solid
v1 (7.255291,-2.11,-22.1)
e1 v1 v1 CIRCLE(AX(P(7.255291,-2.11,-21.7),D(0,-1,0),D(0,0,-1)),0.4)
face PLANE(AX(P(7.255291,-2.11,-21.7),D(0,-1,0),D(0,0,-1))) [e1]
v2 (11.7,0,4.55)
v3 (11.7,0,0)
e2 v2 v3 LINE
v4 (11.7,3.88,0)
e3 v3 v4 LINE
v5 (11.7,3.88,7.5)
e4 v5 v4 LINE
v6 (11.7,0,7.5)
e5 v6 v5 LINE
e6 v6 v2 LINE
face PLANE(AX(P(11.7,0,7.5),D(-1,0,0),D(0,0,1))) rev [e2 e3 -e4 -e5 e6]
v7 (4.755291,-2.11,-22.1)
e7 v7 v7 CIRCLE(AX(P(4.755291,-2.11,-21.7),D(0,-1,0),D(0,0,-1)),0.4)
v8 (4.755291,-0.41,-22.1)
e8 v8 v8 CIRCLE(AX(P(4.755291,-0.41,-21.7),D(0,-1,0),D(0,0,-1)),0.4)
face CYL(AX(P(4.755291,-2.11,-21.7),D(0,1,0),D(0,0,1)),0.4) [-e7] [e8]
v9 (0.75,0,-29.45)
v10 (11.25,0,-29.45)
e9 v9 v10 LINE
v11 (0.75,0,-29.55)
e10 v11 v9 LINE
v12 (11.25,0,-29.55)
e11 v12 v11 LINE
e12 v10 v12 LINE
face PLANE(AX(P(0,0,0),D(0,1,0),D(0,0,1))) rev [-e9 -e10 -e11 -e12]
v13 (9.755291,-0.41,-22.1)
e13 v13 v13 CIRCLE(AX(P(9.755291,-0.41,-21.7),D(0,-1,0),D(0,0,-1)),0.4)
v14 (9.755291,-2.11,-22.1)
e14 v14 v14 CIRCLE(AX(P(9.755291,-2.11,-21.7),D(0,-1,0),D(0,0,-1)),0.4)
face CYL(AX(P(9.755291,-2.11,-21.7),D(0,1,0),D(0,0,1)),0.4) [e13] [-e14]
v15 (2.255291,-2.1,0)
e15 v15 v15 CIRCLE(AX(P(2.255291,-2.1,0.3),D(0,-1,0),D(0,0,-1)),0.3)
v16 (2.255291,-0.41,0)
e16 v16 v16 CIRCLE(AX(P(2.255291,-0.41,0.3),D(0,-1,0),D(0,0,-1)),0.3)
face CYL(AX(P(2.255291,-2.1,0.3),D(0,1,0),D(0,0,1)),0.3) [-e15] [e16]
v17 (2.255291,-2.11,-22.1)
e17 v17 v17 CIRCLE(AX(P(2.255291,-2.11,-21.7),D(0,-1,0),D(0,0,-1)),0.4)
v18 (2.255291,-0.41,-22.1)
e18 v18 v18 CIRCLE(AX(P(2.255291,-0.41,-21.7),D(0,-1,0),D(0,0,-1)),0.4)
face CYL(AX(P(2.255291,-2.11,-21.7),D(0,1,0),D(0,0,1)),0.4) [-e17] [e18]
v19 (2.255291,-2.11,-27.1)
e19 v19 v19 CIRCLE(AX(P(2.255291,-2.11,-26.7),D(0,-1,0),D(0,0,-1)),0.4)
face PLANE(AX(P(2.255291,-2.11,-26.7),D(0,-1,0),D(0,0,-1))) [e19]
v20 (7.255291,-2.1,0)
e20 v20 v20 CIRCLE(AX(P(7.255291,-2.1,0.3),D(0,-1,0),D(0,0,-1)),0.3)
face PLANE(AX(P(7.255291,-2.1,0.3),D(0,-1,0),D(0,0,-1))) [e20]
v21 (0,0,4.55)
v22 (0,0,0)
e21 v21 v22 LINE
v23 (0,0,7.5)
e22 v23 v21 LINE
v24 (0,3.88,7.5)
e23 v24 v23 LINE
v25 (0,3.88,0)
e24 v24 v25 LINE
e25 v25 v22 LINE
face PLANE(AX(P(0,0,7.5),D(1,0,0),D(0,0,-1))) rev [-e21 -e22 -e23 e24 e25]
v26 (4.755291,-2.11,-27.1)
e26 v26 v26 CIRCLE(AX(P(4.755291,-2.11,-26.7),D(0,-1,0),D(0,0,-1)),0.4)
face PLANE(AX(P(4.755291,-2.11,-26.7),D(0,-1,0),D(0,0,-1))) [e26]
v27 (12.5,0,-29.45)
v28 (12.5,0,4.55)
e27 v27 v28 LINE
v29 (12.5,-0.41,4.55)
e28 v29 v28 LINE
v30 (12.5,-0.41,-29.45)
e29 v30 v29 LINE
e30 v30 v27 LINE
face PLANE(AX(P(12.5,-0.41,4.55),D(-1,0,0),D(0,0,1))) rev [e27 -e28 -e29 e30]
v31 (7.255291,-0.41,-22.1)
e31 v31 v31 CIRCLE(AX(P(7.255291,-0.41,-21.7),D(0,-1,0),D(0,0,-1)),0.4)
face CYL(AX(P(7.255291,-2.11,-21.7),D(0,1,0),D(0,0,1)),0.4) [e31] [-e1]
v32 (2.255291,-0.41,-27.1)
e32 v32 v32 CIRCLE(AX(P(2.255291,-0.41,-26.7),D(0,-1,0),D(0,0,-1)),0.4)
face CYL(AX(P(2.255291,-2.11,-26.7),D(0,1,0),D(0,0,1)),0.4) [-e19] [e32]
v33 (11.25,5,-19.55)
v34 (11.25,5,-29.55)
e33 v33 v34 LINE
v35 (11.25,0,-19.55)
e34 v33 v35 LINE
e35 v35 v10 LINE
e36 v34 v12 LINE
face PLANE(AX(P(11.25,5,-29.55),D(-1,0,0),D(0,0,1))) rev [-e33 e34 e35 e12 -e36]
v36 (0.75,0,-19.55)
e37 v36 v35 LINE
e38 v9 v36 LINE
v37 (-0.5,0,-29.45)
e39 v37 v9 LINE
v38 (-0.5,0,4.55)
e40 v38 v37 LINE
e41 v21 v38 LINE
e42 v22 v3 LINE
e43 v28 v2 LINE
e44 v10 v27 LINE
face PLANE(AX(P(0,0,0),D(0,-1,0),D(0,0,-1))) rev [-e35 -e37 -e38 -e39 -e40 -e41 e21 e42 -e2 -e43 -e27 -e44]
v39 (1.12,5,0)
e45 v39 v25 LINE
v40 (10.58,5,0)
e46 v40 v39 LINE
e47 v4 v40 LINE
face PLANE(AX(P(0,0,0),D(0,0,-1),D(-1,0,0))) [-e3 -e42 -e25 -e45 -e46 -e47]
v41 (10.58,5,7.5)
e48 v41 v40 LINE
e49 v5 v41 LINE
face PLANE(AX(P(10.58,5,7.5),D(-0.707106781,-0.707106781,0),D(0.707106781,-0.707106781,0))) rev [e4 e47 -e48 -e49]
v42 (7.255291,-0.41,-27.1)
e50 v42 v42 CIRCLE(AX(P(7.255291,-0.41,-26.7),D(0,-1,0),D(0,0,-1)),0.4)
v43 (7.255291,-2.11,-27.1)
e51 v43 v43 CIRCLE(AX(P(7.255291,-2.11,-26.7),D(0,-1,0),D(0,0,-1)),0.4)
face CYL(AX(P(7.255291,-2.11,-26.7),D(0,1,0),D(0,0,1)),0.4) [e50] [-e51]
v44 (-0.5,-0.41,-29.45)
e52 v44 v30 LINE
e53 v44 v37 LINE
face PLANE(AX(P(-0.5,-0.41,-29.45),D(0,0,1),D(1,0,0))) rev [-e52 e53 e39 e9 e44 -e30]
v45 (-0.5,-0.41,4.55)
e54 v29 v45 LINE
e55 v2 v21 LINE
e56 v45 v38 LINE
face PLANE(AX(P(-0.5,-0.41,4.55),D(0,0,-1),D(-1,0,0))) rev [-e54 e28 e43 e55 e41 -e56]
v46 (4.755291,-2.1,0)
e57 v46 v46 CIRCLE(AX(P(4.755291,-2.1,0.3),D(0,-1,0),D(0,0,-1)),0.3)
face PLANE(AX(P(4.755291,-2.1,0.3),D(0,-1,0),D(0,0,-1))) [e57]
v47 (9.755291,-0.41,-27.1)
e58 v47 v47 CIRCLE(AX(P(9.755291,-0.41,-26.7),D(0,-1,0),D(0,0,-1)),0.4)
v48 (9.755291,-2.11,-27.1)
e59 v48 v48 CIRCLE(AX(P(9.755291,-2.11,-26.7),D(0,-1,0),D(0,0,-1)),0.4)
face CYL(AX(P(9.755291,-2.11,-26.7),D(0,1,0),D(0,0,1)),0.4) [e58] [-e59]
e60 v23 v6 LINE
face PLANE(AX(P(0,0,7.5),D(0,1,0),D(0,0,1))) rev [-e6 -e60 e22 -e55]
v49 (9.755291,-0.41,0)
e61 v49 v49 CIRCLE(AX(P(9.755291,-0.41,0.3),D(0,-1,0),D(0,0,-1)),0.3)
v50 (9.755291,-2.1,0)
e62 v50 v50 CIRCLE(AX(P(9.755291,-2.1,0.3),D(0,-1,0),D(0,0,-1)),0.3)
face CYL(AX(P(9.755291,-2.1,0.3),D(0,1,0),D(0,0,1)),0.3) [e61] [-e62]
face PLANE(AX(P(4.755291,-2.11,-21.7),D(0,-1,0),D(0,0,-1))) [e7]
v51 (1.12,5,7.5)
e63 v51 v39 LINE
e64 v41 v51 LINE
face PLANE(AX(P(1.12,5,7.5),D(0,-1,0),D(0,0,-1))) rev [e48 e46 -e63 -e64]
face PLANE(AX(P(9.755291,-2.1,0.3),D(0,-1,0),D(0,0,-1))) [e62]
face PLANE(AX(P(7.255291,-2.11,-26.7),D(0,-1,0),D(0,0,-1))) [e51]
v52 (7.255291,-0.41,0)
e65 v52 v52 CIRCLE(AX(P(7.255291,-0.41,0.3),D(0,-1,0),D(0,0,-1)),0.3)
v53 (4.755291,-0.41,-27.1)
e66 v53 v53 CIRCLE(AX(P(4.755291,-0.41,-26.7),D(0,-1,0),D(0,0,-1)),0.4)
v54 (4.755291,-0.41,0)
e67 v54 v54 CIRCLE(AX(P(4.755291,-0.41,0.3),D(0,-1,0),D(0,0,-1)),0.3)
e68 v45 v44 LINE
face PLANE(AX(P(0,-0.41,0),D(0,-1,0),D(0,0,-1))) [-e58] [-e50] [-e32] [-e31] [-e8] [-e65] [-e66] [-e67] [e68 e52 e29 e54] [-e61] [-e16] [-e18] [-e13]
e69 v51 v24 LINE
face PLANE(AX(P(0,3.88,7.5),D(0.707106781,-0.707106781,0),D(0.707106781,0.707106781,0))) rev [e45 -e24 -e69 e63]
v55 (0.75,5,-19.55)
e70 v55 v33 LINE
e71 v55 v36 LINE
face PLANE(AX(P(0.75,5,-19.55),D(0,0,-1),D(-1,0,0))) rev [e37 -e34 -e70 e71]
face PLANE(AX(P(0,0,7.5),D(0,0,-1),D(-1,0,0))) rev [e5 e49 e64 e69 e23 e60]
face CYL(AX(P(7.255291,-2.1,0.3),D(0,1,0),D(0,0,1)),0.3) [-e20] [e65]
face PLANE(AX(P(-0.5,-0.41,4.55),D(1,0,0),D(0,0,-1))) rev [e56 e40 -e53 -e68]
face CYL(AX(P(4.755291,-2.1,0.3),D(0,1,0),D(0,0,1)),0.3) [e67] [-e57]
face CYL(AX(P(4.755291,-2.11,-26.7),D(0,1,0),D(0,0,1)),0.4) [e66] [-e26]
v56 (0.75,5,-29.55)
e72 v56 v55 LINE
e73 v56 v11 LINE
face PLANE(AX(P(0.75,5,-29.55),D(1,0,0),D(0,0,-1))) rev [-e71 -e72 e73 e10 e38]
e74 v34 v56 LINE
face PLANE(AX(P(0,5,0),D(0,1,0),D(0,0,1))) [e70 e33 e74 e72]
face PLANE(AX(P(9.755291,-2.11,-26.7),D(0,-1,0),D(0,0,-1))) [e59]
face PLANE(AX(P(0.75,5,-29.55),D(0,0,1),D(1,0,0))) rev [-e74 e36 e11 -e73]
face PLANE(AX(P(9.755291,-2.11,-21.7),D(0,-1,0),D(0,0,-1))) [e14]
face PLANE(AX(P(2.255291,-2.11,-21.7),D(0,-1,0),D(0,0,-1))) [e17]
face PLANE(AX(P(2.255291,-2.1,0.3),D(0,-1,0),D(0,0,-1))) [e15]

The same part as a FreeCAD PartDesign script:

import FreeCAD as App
import Part
import Sketcher

V = App.Vector

doc = App.newDocument("Part")
body = doc.addObject("PartDesign::Body", "Body")

# Sketch on XY plane
sketch1 = doc.addObject("Sketcher::SketchObject", "Sketch")
body.addObject(sketch1)
sketch1.AttachmentSupport = (doc.XY_Plane, [""])
sketch1.MapMode = "FlatFace"
sketch1.addGeometry(Part.LineSegment(V(11.7, 3.9, 0), V(10.6, 5, 0)), False)
sketch1.addGeometry(Part.LineSegment(V(10.6, 5, 0), V(1.1, 5, 0)), False)
sketch1.addGeometry(Part.LineSegment(V(1.1, 5, 0), V(0, 3.9, 0)), False)
sketch1.addGeometry(Part.LineSegment(V(0, 3.9, 0), V(0, 0, 0)), False)
sketch1.addGeometry(Part.LineSegment(V(0, 0, 0), V(11.7, 0, 0)), False)
sketch1.addGeometry(Part.LineSegment(V(11.7, 0, 0), V(11.7, 3.9, 0)), False)
sketch1.addConstraint(Sketcher.Constraint("Coincident", 0, 2, 1, 1))
sketch1.addConstraint(Sketcher.Constraint("Coincident", 1, 2, 2, 1))
sketch1.addConstraint(Sketcher.Constraint("Coincident", 2, 2, 3, 1))
sketch1.addConstraint(Sketcher.Constraint("Coincident", 3, 2, 4, 1))
sketch1.addConstraint(Sketcher.Constraint("Coincident", 4, 2, 5, 1))
sketch1.addConstraint(Sketcher.Constraint("Coincident", 5, 2, 0, 1))
sketch1.addConstraint(Sketcher.Constraint("Horizontal", 1))
sketch1.addConstraint(Sketcher.Constraint("Vertical", 3))
sketch1.addConstraint(Sketcher.Constraint("Horizontal", 4))
sketch1.addConstraint(Sketcher.Constraint("Vertical", 5))
sketch1.addConstraint(Sketcher.Constraint("Coincident", 3, 2, -1, 1))
sketch1.addConstraint(Sketcher.Constraint("Perpendicular", 0, 2))
sketch1.addConstraint(Sketcher.Constraint("Horizontal", 2, 2, 5, 2))
sketch1.addConstraint(Sketcher.Constraint("Equal", 0, 2))
sketch1.addConstraint(Sketcher.Constraint("DistanceX", 4, 1, 4, 2, 11.7))
sketch1.addConstraint(Sketcher.Constraint("DistanceY", -1, 1, 0, 2, 5.0))
sketch1.addConstraint(Sketcher.Constraint("DistanceX", 1, 2, 1, 1, 9.46))
pad1 = doc.addObject("PartDesign::Pad", "Pad")
body.addObject(pad1)
pad1.Profile = sketch1
pad1.Length = 7.5

# Sketch on XZ plane
sketch2 = doc.addObject("Sketcher::SketchObject", "Sketch001")
body.addObject(sketch2)
sketch2.AttachmentSupport = (doc.XZ_Plane, [""])
sketch2.MapMode = "FlatFace"
sketch2.addGeometry(Part.LineSegment(V(0, 5, 0), V(0, -29, 0)), False)
sketch2.addGeometry(Part.LineSegment(V(0, -29, 0), V(12, -29, 0)), False)
sketch2.addGeometry(Part.LineSegment(V(12, -29, 0), V(12, 5, 0)), False)
sketch2.addGeometry(Part.LineSegment(V(12, 5, 0), V(0, 5, 0)), False)
sketch2.addConstraint(Sketcher.Constraint("Coincident", 0, 2, 1, 1))
sketch2.addConstraint(Sketcher.Constraint("Coincident", 1, 2, 2, 1))
sketch2.addConstraint(Sketcher.Constraint("Coincident", 2, 2, 3, 1))
sketch2.addConstraint(Sketcher.Constraint("Coincident", 3, 2, 0, 1))
sketch2.addConstraint(Sketcher.Constraint("Vertical", 0))
sketch2.addConstraint(Sketcher.Constraint("Horizontal", 1))
sketch2.addConstraint(Sketcher.Constraint("Vertical", 2))
sketch2.addConstraint(Sketcher.Constraint("Horizontal", 3))
sketch2.addConstraint(Sketcher.Constraint("DistanceX", 1, 1, 1, 2, 13.0))
sketch2.addConstraint(Sketcher.Constraint("DistanceY", 0, 2, 0, 1, 34.0))
sketch2.addConstraint(Sketcher.Constraint("DistanceX", 0, 2, -1, 1, 0.5))
sketch2.addConstraint(Sketcher.Constraint("DistanceY", 0, 2, -1, 1, 29.45))
pad2 = doc.addObject("PartDesign::Pad", "Pad001")
body.addObject(pad2)
pad2.Profile = sketch2
pad2.Length = 0.41

# Sketch on XZ plane
sketch3 = doc.addObject("Sketcher::SketchObject", "Sketch002")
body.addObject(sketch3)
sketch3.AttachmentSupport = (doc.XZ_Plane, [""])
sketch3.MapMode = "FlatFace"
sketch3.AttachmentOffset = App.Placement(V(0, 0, 0.41), App.Rotation())
sketch3.addGeometry(Part.Circle(V(2.26, 0.3, 0), V(0, 0, 1), 0.3), False)
sketch3.addGeometry(Part.Circle(V(4.76, 0.3, 0), V(0, 0, 1), 0.3), False)
sketch3.addGeometry(Part.Circle(V(7.26, 0.3, 0), V(0, 0, 1), 0.3), False)
sketch3.addGeometry(Part.Circle(V(9.76, 0.3, 0), V(0, 0, 1), 0.3), False)
sketch3.addConstraint(Sketcher.Constraint("Equal", 0, 1))
sketch3.addConstraint(Sketcher.Constraint("Equal", 1, 2))
sketch3.addConstraint(Sketcher.Constraint("Equal", 2, 3))
sketch3.addConstraint(Sketcher.Constraint("Horizontal", 0, 3, 1, 3))
sketch3.addConstraint(Sketcher.Constraint("Horizontal", 1, 3, 2, 3))
sketch3.addConstraint(Sketcher.Constraint("Horizontal", 2, 3, 3, 3))
sketch3.addConstraint(Sketcher.Constraint("Diameter", 0, 0.6))
sketch3.addConstraint(Sketcher.Constraint("DistanceX", 0, 3, 2, 3, 5.0))
sketch3.addConstraint(Sketcher.Constraint("DistanceX", 1, 3, 3, 3, 5.0))
sketch3.addConstraint(Sketcher.Constraint("DistanceY", -1, 1, 0, 3, 0.3))
sketch3.addConstraint(Sketcher.Constraint("DistanceX", 0, 3, 1, 3, 2.5))
sketch3.addConstraint(Sketcher.Constraint("DistanceX", -1, 1, 0, 3, 2.255291))
pad3 = doc.addObject("PartDesign::Pad", "Pad002")
body.addObject(pad3)
pad3.Profile = sketch3
pad3.Length = 1.69

# Sketch on XZ plane
sketch4 = doc.addObject("Sketcher::SketchObject", "Sketch003")
body.addObject(sketch4)
sketch4.AttachmentSupport = (doc.XZ_Plane, [""])
sketch4.MapMode = "FlatFace"
sketch4.addGeometry(Part.LineSegment(V(1, -30, 0), V(1, -20, 0)), False)
sketch4.addGeometry(Part.LineSegment(V(1, -20, 0), V(11, -20, 0)), False)
sketch4.addGeometry(Part.LineSegment(V(11, -20, 0), V(11, -30, 0)), False)
sketch4.addGeometry(Part.LineSegment(V(11, -30, 0), V(1, -30, 0)), False)
sketch4.addConstraint(Sketcher.Constraint("Coincident", 0, 2, 1, 1))
sketch4.addConstraint(Sketcher.Constraint("Coincident", 1, 2, 2, 1))
sketch4.addConstraint(Sketcher.Constraint("Coincident", 2, 2, 3, 1))
sketch4.addConstraint(Sketcher.Constraint("Coincident", 3, 2, 0, 1))
sketch4.addConstraint(Sketcher.Constraint("Vertical", 0))
sketch4.addConstraint(Sketcher.Constraint("Horizontal", 1))
sketch4.addConstraint(Sketcher.Constraint("Vertical", 2))
sketch4.addConstraint(Sketcher.Constraint("Horizontal", 3))
sketch4.addConstraint(Sketcher.Constraint("DistanceY", 0, 1, 0, 2, 10.0))
sketch4.addConstraint(Sketcher.Constraint("DistanceX", 1, 1, 1, 2, 10.5))
sketch4.addConstraint(Sketcher.Constraint("DistanceX", -1, 1, 0, 2, 0.75))
sketch4.addConstraint(Sketcher.Constraint("DistanceY", 0, 2, -1, 1, 19.55))
pad4 = doc.addObject("PartDesign::Pad", "Pad003")
body.addObject(pad4)
pad4.Profile = sketch4
pad4.Length = 5
pad4.Reversed = True

# Sketch on XZ plane
sketch5 = doc.addObject("Sketcher::SketchObject", "Sketch004")
body.addObject(sketch5)
sketch5.AttachmentSupport = (doc.XZ_Plane, [""])
sketch5.MapMode = "FlatFace"
sketch5.AttachmentOffset = App.Placement(V(0, 0, 0.41), App.Rotation())
sketch5.addGeometry(Part.Circle(V(2.26, -26.7, 0), V(0, 0, 1), 0.4), False)
sketch5.addGeometry(Part.Circle(V(4.76, -26.7, 0), V(0, 0, 1), 0.4), False)
sketch5.addGeometry(Part.Circle(V(7.26, -26.7, 0), V(0, 0, 1), 0.4), False)
sketch5.addGeometry(Part.Circle(V(9.76, -26.7, 0), V(0, 0, 1), 0.4), False)
sketch5.addGeometry(Part.Circle(V(4.76, -21.7, 0), V(0, 0, 1), 0.4), False)
sketch5.addGeometry(Part.Circle(V(7.26, -21.7, 0), V(0, 0, 1), 0.4), False)
sketch5.addGeometry(Part.Circle(V(9.76, -21.7, 0), V(0, 0, 1), 0.4), False)
sketch5.addGeometry(Part.Circle(V(2.26, -21.7, 0), V(0, 0, 1), 0.4), False)
sketch5.addConstraint(Sketcher.Constraint("Equal", 0, 1))
sketch5.addConstraint(Sketcher.Constraint("Equal", 1, 2))
sketch5.addConstraint(Sketcher.Constraint("Equal", 2, 3))
sketch5.addConstraint(Sketcher.Constraint("Equal", 3, 4))
sketch5.addConstraint(Sketcher.Constraint("Equal", 4, 5))
sketch5.addConstraint(Sketcher.Constraint("Equal", 5, 6))
sketch5.addConstraint(Sketcher.Constraint("Equal", 6, 7))
sketch5.addConstraint(Sketcher.Constraint("Horizontal", 0, 3, 1, 3))
sketch5.addConstraint(Sketcher.Constraint("Horizontal", 1, 3, 2, 3))
sketch5.addConstraint(Sketcher.Constraint("Horizontal", 2, 3, 3, 3))
sketch5.addConstraint(Sketcher.Constraint("Horizontal", 4, 3, 5, 3))
sketch5.addConstraint(Sketcher.Constraint("Horizontal", 5, 3, 6, 3))
sketch5.addConstraint(Sketcher.Constraint("Horizontal", 6, 3, 7, 3))
sketch5.addConstraint(Sketcher.Constraint("Vertical", 1, 3, 4, 3))
sketch5.addConstraint(Sketcher.Constraint("Vertical", 2, 3, 5, 3))
sketch5.addConstraint(Sketcher.Constraint("Vertical", 3, 3, 6, 3))
sketch5.addConstraint(Sketcher.Constraint("Vertical", 0, 3, 7, 3))
sketch5.addConstraint(Sketcher.Constraint("Diameter", 0, 0.8))
sketch5.addConstraint(Sketcher.Constraint("DistanceX", 0, 3, 2, 3, 5.0))
sketch5.addConstraint(Sketcher.Constraint("DistanceX", 1, 3, 3, 3, 5.0))
sketch5.addConstraint(Sketcher.Constraint("DistanceY", 1, 3, 4, 3, 5.0))
sketch5.addConstraint(Sketcher.Constraint("DistanceY", 0, 3, -1, 1, 26.7))
sketch5.addConstraint(Sketcher.Constraint("DistanceX", 0, 3, 1, 3, 2.5))
sketch5.addConstraint(Sketcher.Constraint("DistanceX", -1, 1, 0, 3, 2.255291))
pad5 = doc.addObject("PartDesign::Pad", "Pad004")
body.addObject(pad5)
pad5.Profile = sketch5
pad5.Length = 1.7

doc.recompute()
